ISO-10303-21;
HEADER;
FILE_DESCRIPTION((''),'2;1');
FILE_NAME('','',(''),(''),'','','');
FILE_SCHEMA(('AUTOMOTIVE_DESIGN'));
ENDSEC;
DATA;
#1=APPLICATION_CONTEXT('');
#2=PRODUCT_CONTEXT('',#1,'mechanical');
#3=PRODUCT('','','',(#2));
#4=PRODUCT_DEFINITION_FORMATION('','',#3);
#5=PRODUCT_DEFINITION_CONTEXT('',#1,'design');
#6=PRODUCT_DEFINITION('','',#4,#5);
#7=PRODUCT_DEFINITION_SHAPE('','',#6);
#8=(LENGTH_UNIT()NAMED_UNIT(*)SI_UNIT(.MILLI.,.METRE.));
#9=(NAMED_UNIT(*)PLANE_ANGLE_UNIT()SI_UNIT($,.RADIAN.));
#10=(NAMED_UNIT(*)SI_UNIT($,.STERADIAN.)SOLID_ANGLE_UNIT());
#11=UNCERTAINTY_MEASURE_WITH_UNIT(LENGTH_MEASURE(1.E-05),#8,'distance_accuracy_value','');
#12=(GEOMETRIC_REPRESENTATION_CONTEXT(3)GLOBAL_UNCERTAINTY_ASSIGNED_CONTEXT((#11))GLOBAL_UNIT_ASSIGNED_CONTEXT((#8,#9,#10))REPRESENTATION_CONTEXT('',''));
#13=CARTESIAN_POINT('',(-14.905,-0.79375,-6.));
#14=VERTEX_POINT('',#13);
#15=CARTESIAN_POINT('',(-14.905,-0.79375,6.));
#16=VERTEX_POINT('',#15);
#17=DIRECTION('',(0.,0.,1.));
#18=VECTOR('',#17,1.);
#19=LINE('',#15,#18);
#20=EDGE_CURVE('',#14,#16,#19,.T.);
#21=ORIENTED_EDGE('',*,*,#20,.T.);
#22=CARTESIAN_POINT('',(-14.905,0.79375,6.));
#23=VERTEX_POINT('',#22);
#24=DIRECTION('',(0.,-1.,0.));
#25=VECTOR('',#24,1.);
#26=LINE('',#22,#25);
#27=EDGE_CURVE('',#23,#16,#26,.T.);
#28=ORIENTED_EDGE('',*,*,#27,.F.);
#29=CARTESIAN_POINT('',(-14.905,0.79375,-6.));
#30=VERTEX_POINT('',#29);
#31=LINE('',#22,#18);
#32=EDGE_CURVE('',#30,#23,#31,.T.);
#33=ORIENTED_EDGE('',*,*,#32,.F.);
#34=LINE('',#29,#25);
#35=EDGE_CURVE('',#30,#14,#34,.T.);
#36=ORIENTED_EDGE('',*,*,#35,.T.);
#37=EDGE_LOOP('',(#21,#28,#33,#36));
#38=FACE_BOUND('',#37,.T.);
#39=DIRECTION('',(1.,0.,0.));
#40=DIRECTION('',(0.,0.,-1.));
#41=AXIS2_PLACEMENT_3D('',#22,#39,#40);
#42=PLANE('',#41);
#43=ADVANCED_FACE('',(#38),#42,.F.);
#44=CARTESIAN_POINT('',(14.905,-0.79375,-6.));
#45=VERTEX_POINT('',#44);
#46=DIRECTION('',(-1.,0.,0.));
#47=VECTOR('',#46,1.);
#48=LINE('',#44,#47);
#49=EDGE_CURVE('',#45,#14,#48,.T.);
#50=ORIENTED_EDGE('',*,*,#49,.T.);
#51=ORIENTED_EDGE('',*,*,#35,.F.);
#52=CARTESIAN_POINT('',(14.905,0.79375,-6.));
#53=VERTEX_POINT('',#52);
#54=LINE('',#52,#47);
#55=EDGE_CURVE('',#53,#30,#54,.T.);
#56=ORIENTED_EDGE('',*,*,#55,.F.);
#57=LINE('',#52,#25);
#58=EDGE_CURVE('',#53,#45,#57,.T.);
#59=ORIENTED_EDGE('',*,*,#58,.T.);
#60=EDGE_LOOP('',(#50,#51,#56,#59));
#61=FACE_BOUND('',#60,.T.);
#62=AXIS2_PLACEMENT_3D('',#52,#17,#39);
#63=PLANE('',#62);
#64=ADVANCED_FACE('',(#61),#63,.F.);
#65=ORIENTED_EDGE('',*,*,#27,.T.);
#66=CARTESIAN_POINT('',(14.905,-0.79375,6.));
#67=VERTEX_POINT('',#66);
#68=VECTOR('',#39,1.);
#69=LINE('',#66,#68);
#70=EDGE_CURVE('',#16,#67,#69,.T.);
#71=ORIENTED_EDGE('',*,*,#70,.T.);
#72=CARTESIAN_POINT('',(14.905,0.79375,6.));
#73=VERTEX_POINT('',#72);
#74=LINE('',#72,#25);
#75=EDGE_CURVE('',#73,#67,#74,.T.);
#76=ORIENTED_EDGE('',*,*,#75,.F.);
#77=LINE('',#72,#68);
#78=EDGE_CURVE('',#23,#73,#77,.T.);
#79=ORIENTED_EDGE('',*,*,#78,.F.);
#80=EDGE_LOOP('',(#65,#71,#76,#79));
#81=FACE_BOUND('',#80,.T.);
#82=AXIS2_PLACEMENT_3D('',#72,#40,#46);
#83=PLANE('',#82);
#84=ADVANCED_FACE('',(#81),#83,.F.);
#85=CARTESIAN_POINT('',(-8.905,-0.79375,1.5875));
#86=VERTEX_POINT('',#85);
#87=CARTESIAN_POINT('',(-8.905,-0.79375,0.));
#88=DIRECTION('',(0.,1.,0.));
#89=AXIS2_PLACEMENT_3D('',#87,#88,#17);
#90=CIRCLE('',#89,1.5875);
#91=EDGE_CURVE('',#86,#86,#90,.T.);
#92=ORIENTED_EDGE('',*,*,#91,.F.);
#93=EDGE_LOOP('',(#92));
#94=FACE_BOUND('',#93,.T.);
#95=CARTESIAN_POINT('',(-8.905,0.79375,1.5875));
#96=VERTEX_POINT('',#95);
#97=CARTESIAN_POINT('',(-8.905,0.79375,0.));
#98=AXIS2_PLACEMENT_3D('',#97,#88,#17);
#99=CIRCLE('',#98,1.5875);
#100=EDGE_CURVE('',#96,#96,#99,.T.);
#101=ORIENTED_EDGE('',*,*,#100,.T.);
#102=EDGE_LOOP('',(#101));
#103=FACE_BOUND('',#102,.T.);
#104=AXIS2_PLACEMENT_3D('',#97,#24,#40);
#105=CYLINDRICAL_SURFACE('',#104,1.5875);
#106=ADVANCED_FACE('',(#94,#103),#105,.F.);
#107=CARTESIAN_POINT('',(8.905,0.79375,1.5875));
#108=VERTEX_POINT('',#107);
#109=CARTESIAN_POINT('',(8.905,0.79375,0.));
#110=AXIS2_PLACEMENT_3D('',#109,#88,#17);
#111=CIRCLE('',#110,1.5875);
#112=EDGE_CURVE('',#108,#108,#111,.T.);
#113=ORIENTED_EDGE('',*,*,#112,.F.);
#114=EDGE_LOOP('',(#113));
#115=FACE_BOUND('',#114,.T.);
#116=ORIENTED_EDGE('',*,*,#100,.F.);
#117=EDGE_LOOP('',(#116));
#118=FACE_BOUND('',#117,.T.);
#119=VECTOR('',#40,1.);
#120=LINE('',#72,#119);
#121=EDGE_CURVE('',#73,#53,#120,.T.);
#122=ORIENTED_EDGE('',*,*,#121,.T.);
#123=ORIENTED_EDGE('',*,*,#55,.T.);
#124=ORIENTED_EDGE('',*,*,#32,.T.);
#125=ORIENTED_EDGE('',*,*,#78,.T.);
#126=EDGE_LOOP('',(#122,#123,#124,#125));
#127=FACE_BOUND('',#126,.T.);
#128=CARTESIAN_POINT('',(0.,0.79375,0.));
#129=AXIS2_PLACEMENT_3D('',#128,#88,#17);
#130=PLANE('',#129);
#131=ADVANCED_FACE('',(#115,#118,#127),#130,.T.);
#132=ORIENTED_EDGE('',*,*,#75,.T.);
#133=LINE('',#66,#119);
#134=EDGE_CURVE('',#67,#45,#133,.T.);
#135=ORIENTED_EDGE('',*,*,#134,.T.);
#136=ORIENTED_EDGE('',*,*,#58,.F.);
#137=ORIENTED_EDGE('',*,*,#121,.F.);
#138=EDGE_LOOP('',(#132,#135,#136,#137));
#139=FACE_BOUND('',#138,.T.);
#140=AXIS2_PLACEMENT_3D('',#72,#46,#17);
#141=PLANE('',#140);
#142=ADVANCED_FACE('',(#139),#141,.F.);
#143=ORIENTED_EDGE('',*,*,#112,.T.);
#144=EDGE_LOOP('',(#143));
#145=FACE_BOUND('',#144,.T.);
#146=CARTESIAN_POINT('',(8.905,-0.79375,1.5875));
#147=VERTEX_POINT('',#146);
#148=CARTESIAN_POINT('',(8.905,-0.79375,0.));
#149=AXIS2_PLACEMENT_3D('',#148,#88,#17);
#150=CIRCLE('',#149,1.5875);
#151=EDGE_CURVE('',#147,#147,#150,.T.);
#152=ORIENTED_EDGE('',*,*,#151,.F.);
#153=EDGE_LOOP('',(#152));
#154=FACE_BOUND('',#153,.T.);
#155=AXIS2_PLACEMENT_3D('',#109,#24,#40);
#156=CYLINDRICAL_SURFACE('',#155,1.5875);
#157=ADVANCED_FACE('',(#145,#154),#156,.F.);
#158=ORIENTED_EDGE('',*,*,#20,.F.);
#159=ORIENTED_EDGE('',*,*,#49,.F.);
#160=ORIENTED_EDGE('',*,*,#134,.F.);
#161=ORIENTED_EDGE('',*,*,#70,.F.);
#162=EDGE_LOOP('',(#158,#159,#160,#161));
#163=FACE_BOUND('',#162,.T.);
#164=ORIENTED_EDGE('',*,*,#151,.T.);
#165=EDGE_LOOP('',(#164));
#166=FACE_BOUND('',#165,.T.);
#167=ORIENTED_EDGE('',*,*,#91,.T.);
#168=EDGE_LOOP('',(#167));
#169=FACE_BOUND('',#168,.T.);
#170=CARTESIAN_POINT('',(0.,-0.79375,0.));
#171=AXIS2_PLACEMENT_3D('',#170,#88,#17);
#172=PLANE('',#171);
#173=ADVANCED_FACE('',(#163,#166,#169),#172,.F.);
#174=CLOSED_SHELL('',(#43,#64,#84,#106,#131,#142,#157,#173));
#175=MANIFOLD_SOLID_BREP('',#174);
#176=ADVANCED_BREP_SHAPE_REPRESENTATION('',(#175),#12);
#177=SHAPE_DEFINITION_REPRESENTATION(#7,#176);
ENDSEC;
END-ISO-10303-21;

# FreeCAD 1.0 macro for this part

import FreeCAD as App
import Part
import Sketcher

V = App.Vector
Q = App.Units.Quantity

doc = App.newDocument("Part")
body = doc.addObject("PartDesign::Body", "Body")

# Sketch on XZ plane
sketch1 = doc.addObject("Sketcher::SketchObject", "Sketch")
body.addObject(sketch1)
sketch1.AttachmentSupport = (doc.XZ_Plane, [""])
sketch1.MapMode = "FlatFace"
sketch1.addGeometry(Part.LineSegment(V(-14.9, -6, 0), V(-14.9, 6, 0)), False)
sketch1.addGeometry(Part.LineSegment(V(-14.9, 6, 0), V(14.9, 6, 0)), False)
sketch1.addGeometry(Part.LineSegment(V(14.9, 6, 0), V(14.9, -6, 0)), False)
sketch1.addGeometry(Part.LineSegment(V(14.9, -6, 0), V(-14.9, -6, 0)), False)
sketch1.addGeometry(Part.Circle(V(-8.9, 0, 0), V(0, 0, 1), 1.6), False)
sketch1.addGeometry(Part.Circle(V(8.9, 0, 0), V(0, 0, 1), 1.6), False)
sketch1.addConstraint(Sketcher.Constraint("Coincident", 0, 2, 1, 1))
sketch1.addConstraint(Sketcher.Constraint("Coincident", 1, 2, 2, 1))
sketch1.addConstraint(Sketcher.Constraint("Coincident", 2, 2, 3, 1))
sketch1.addConstraint(Sketcher.Constraint("Coincident", 3, 2, 0, 1))
sketch1.addConstraint(Sketcher.Constraint("Vertical", 0))
sketch1.addConstraint(Sketcher.Constraint("Horizontal", 1))
sketch1.addConstraint(Sketcher.Constraint("Vertical", 2))
sketch1.addConstraint(Sketcher.Constraint("Horizontal", 3))
sketch1.addConstraint(Sketcher.Constraint("Equal", 4, 5))
sketch1.addConstraint(Sketcher.Constraint("Symmetric", 4, 3, 5, 3, -1, 1))
sketch1.addConstraint(Sketcher.Constraint("Symmetric", 0, 2, 2, 2, -1, 1))
sketch1.addConstraint(Sketcher.Constraint("PointOnObject", 4, 3, -1))
sketch1.addConstraint(Sketcher.Constraint("Diameter", 4, Q("0.125 in")))
sketch1.addConstraint(Sketcher.Constraint("DistanceX", 1, 1, 1, 2, 29.81))
sketch1.addConstraint(Sketcher.Constraint("DistanceY", 0, 1, 0, 2, 12.0))
sketch1.addConstraint(Sketcher.Constraint("DistanceX", 4, 3, -1, 1, 8.905))
pad1 = doc.addObject("PartDesign::Pad", "Pad")
body.addObject(pad1)
pad1.Profile = sketch1
pad1.Length = Q("0.0625 in")
pad1.Midplane = True

doc.recompute()
